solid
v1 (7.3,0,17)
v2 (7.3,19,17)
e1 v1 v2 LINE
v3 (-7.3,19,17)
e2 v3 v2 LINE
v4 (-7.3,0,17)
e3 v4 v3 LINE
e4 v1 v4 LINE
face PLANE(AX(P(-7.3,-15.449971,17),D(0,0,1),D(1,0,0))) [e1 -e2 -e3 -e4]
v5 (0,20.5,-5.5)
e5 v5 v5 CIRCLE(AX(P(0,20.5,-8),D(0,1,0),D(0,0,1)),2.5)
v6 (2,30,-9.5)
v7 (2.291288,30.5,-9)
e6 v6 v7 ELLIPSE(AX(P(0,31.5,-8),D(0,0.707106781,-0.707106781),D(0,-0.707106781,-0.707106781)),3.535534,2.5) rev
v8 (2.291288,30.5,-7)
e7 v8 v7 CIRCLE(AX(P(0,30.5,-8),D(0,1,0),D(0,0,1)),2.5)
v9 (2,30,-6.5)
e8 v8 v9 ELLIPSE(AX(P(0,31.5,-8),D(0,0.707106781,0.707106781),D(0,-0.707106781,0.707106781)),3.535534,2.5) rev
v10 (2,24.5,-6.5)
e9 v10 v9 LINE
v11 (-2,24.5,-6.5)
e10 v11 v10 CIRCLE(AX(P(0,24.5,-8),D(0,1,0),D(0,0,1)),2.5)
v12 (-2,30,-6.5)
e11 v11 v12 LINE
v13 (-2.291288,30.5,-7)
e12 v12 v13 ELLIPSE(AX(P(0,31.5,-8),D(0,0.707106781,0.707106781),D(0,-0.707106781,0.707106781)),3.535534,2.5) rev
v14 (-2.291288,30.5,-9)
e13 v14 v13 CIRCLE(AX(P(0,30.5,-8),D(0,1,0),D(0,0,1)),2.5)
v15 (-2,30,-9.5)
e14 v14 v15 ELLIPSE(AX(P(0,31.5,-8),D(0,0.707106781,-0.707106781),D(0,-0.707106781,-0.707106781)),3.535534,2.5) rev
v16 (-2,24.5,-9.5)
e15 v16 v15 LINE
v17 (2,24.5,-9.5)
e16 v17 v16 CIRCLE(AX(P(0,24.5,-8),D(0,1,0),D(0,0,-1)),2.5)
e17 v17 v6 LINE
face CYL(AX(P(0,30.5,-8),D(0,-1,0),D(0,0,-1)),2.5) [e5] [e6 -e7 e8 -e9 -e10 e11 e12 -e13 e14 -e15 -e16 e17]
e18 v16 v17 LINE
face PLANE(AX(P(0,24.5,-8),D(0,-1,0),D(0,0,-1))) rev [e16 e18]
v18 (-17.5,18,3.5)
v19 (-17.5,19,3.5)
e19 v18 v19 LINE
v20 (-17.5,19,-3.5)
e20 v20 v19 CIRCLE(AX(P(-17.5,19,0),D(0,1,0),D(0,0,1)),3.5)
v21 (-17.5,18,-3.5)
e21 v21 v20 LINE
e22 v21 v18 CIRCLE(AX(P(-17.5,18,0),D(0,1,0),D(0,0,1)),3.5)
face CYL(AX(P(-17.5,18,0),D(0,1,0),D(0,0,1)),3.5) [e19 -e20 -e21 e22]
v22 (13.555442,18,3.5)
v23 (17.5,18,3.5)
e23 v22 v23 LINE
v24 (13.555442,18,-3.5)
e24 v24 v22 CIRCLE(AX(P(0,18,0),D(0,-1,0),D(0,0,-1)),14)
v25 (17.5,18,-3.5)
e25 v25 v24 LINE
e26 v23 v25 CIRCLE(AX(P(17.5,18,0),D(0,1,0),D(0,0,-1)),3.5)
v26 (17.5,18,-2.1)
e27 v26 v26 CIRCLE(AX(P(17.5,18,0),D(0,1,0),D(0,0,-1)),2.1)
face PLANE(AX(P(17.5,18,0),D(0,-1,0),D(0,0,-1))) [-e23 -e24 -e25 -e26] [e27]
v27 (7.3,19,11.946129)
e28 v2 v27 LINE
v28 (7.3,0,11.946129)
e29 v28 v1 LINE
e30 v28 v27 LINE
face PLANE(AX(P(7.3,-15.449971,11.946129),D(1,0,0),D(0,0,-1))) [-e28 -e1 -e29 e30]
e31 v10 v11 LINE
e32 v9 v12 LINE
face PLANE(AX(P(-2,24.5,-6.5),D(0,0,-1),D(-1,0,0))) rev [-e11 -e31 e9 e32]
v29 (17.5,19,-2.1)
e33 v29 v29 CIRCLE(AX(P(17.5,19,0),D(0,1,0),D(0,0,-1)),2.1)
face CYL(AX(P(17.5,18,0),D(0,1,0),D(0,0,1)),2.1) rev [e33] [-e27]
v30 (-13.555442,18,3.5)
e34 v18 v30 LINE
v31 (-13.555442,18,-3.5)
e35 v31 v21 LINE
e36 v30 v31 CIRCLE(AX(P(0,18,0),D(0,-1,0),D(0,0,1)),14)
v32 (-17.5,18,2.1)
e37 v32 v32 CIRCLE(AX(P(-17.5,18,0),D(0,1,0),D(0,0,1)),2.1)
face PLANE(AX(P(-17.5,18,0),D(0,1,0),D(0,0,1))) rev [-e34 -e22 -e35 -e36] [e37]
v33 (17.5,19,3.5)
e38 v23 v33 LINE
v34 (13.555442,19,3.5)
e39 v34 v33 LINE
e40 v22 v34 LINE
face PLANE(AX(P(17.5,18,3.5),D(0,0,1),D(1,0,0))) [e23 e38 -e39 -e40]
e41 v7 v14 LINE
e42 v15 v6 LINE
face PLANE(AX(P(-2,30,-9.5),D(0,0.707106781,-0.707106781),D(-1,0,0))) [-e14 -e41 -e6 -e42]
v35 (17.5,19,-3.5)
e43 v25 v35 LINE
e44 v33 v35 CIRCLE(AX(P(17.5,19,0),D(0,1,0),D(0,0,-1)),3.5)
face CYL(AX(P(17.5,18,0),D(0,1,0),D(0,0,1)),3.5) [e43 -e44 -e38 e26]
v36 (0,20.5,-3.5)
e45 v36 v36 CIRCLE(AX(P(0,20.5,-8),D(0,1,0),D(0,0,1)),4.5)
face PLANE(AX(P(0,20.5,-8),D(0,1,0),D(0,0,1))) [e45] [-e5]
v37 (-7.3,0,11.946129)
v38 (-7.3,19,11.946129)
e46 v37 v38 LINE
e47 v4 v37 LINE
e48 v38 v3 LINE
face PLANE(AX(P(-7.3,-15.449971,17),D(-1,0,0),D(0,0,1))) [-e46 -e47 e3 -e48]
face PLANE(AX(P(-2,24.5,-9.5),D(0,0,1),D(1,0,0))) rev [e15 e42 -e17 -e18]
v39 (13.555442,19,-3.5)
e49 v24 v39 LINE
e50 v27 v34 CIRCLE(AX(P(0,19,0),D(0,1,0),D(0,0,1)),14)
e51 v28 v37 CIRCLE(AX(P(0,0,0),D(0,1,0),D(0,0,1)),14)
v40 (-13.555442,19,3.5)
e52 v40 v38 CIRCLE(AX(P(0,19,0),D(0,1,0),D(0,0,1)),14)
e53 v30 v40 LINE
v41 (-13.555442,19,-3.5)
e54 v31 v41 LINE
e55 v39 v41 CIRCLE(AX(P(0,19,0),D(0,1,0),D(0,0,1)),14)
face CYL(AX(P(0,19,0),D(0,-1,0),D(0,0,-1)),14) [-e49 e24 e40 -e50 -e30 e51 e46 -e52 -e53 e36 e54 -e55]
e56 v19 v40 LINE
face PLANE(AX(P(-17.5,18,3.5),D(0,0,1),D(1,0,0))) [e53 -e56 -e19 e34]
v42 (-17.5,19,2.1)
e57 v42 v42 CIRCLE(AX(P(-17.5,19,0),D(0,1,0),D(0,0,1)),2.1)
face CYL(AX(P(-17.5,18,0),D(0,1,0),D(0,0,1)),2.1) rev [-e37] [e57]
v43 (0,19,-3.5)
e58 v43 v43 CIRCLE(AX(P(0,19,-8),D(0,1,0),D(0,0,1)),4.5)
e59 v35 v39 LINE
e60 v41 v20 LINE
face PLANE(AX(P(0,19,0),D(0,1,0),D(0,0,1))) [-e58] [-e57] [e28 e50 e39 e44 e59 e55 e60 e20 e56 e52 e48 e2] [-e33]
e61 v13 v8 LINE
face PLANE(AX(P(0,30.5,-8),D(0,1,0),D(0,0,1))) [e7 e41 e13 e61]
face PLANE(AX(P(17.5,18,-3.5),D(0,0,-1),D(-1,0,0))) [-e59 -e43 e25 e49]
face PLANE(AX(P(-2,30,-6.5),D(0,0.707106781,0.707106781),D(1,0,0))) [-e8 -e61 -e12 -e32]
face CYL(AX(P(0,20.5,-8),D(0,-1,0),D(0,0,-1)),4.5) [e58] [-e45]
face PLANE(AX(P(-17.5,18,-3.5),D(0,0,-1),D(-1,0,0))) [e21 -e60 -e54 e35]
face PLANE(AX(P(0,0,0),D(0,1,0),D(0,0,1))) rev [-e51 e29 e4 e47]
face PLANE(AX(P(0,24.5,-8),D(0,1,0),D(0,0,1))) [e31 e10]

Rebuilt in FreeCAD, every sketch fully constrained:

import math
import FreeCAD as App
import Part
import Sketcher

V = App.Vector
Q = App.Units.Quantity


def edges_at(feature, points):
    """Names of the edges that pass closest to the given points."""
    edges = feature.Shape.Edges
    near = lambda p: min(range(len(edges)), key=lambda i: edges[i].distToShape(Part.Vertex(*p))[0])
    return sorted({f"Edge{near(p) + 1}" for p in points})

doc = App.newDocument("Part")
body = doc.addObject("PartDesign::Body", "Body")

sketch1 = doc.addObject("Sketcher::SketchObject", "Sketch")
body.addObject(sketch1)
sketch1.AttachmentSupport = (doc.XZ_Plane, [""])
sketch1.MapMode = "FlatFace"
sketch1.addGeometry(Part.Circle(V(0, 0, 0), V(0, 0, 1), 14), False)
sketch1.addConstraint([
    Sketcher.Constraint("Coincident", 0, 3, -1, 1),
    Sketcher.Constraint("Diameter", 0, Q("28 mm")),
])
pad1 = doc.addObject("PartDesign::Pad", "Pad")
body.addObject(pad1)
pad1.Profile = sketch1
pad1.Length = 19
pad1.Reversed = True

sketch2 = doc.addObject("Sketcher::SketchObject", "Sketch001")
body.addObject(sketch2)
sketch2.AttachmentSupport = (doc.XZ_Plane, [""])
sketch2.MapMode = "FlatFace"
sketch2.AttachmentOffset = App.Placement(V(0, 0, -19), App.Rotation())
sketch2.addGeometry([
    Part.LineSegment(V(-13.555442, -3.5, 0), V(-17.5, -3.5, 0)),
    Part.ArcOfCircle(Part.Circle(V(-17.5, 0, 0), V(0, 0, 1), 3.5), math.radians(90), math.radians(270)),
    Part.LineSegment(V(-17.5, 3.5, 0), V(-13.555442, 3.5, 0)),
    Part.ArcOfCircle(Part.Circle(V(0, 0, 0), V(0, 0, 1), 14), math.radians(165.522488), math.radians(194.477512)),
    Part.Circle(V(-17.5, 0, 0), V(0, 0, 1), 2.1),
    Part.LineSegment(V(13.555442, 3.5, 0), V(17.5, 3.5, 0)),
    Part.ArcOfCircle(Part.Circle(V(17.5, 0, 0), V(0, 0, 1), 3.5), math.radians(-90), math.radians(90)),
    Part.LineSegment(V(17.5, -3.5, 0), V(13.555442, -3.5, 0)),
    Part.ArcOfCircle(Part.Circle(V(0, 0, 0), V(0, 0, 1), 14), math.radians(-14.477512), math.radians(14.477512)),
    Part.Circle(V(17.5, 0, 0), V(0, 0, 1), 2.1),
], False)
sketch2.addConstraint([
    Sketcher.Constraint("Tangent", 0, 2, 1, 2),
    Sketcher.Constraint("Tangent", 1, 1, 2, 1),
    Sketcher.Constraint("Coincident", 2, 2, 3, 1),
    Sketcher.Constraint("Coincident", 3, 2, 0, 1),
    Sketcher.Constraint("Tangent", 5, 2, 6, 2),
    Sketcher.Constraint("Tangent", 6, 1, 7, 1),
    Sketcher.Constraint("Coincident", 7, 2, 8, 1),
    Sketcher.Constraint("Coincident", 8, 2, 5, 1),
    Sketcher.Constraint("Horizontal", 0),
    Sketcher.Constraint("Horizontal", 2),
    Sketcher.Constraint("Horizontal", 5),
    Sketcher.Constraint("Horizontal", 7),
    Sketcher.Constraint("Coincident", 3, 3, -1, 1),
    Sketcher.Constraint("Coincident", 8, 3, -1, 1),
    Sketcher.Constraint("Coincident", 4, 3, 1, 3),
    Sketcher.Constraint("Coincident", 9, 3, 6, 3),
    Sketcher.Constraint("Equal", 1, 6),
    Sketcher.Constraint("Equal", 3, 8),
    Sketcher.Constraint("Equal", 4, 9),
    Sketcher.Constraint("Symmetric", 1, 3, 6, 3, -1, 1),
    Sketcher.Constraint("PointOnObject", 1, 3, -1),
    Sketcher.Constraint("Radius", 3, Q("14 mm")),
    Sketcher.Constraint("Diameter", 4, Q("4.2 mm")),
    Sketcher.Constraint("Radius", 1, Q("3.5 mm")),
    Sketcher.Constraint("DistanceX", 1, 3, 6, 3, Q("35 mm")),
])
pad2 = doc.addObject("PartDesign::Pad", "Pad001")
body.addObject(pad2)
pad2.Profile = sketch2
pad2.Length = 1

sketch3 = doc.addObject("Sketcher::SketchObject", "Sketch002")
body.addObject(sketch3)
sketch3.AttachmentSupport = (doc.XZ_Plane, [""])
sketch3.MapMode = "FlatFace"
sketch3.AttachmentOffset = App.Placement(V(0, 0, -19), App.Rotation())
sketch3.addGeometry(Part.Circle(V(0, -8, 0), V(0, 0, 1), 4.5), False)
sketch3.addConstraint([
    Sketcher.Constraint("PointOnObject", 0, 3, -2),
    Sketcher.Constraint("Diameter", 0, Q("9 mm")),
    Sketcher.Constraint("DistanceY", 0, 3, -1, 1, Q("8 mm")),
])
pad3 = doc.addObject("PartDesign::Pad", "Pad002")
body.addObject(pad3)
pad3.Profile = sketch3
pad3.Length = 1.5
pad3.Reversed = True

sketch4 = doc.addObject("Sketcher::SketchObject", "Sketch003")
body.addObject(sketch4)
sketch4.AttachmentSupport = (doc.XZ_Plane, [""])
sketch4.MapMode = "FlatFace"
sketch4.AttachmentOffset = App.Placement(V(0, 0, -20.5), App.Rotation())
sketch4.addGeometry(Part.Circle(V(0, -8, 0), V(0, 0, 1), 2.5), False)
sketch4.addConstraint([
    Sketcher.Constraint("PointOnObject", 0, 3, -2),
    Sketcher.Constraint("Diameter", 0, Q("5 mm")),
    Sketcher.Constraint("DistanceY", 0, 3, -1, 1, Q("8 mm")),
])
pad4 = doc.addObject("PartDesign::Pad", "Pad003")
body.addObject(pad4)
pad4.Profile = sketch4
pad4.Length = 10
pad4.Reversed = True

sketch5 = doc.addObject("Sketcher::SketchObject", "Sketch004")
body.addObject(sketch5)
sketch5.AttachmentSupport = (doc.XZ_Plane, [""])
sketch5.MapMode = "FlatFace"
sketch5.AttachmentOffset = App.Placement(V(0, 0, -30.5), App.Rotation())
sketch5.addGeometry([
    Part.LineSegment(V(-2, -9.5, 0), V(2, -9.5, 0)),
    Part.ArcOfCircle(Part.Circle(V(0, -8, 0), V(0, 0, 1), 2.5), math.radians(-143.130102), math.radians(-36.869898)),
    Part.LineSegment(V(2, -6.5, 0), V(-2, -6.5, 0)),
    Part.ArcOfCircle(Part.Circle(V(0, -8, 0), V(0, 0, 1), 2.5), math.radians(36.869898), math.radians(143.130102)),
], False)
sketch5.addConstraint([
    Sketcher.Constraint("Coincident", 0, 1, 1, 1),
    Sketcher.Constraint("Coincident", 1, 2, 0, 2),
    Sketcher.Constraint("Coincident", 2, 1, 3, 1),
    Sketcher.Constraint("Coincident", 3, 2, 2, 2),
    Sketcher.Constraint("Horizontal", 0),
    Sketcher.Constraint("Horizontal", 2),
    Sketcher.Constraint("Coincident", 3, 3, 1, 3),
    Sketcher.Constraint("Equal", 1, 3),
    Sketcher.Constraint("PointOnObject", 1, 3, -2),
    Sketcher.Constraint("Vertical", 1, 2, 2, 1),
    Sketcher.Constraint("Radius", 1, Q("2.5 mm")),
    Sketcher.Constraint("DistanceX", 0, 1, 0, 2, Q("4 mm")),
    Sketcher.Constraint("DistanceY", 1, 3, -1, 1, Q("8 mm")),
])
pocket1 = doc.addObject("PartDesign::Pocket", "Pocket")
body.addObject(pocket1)
pocket1.Profile = sketch5
pocket1.Length = 6
pocket1.Reversed = True
doc.recompute()

chamfer = doc.addObject("PartDesign::Chamfer", "Chamfer")
body.addObject(chamfer)
chamfer.Base = (pocket1, edges_at(pocket1, [(0, 30.5, -9.5), (0, 30.5, -6.5)]))
chamfer.Size = 0.5

sketch6 = doc.addObject("Sketcher::SketchObject", "Sketch005")
body.addObject(sketch6)
sketch6.AttachmentSupport = (doc.XZ_Plane, [""])
sketch6.MapMode = "FlatFace"
sketch6.AttachmentOffset = App.Placement(V(0, 0, -19), App.Rotation())
sketch6.addGeometry([
    Part.LineSegment(V(-7.3, 17, 0), V(7.3, 17, 0)),
    Part.LineSegment(V(7.3, 17, 0), V(7.3, 11.946129, 0)),
    Part.ArcOfCircle(Part.Circle(V(0, 0, 0), V(0, 0, 1), 14), math.radians(58.571874), math.radians(121.428126)),
    Part.LineSegment(V(-7.3, 11.946129, 0), V(-7.3, 17, 0)),
], False)
sketch6.addConstraint([
    Sketcher.Constraint("Coincident", 0, 2, 1, 1),
    Sketcher.Constraint("Coincident", 1, 2, 2, 1),
    Sketcher.Constraint("Coincident", 2, 2, 3, 1),
    Sketcher.Constraint("Coincident", 3, 2, 0, 1),
    Sketcher.Constraint("Horizontal", 0),
    Sketcher.Constraint("Vertical", 1),
    Sketcher.Constraint("Vertical", 3),
    Sketcher.Constraint("Coincident", 2, 3, -1, 1),
    Sketcher.Constraint("Horizontal", 1, 2, 2, 2),
    Sketcher.Constraint("Radius", 2, Q("14 mm")),
    Sketcher.Constraint("DistanceX", 0, 1, 0, 2, Q("14.6 mm")),
    Sketcher.Constraint("DistanceY", -1, 1, 0, 2, Q("17 mm")),
])
pad5 = doc.addObject("PartDesign::Pad", "Pad004")
body.addObject(pad5)
pad5.Profile = sketch6
pad5.Length = 19

doc.recompute()
